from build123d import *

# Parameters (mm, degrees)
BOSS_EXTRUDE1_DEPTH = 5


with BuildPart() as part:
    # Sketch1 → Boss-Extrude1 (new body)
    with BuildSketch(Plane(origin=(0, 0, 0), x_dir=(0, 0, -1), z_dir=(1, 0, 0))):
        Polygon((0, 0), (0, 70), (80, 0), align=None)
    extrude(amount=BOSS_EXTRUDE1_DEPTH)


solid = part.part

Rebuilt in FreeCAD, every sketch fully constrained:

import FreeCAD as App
import Part
import Sketcher

V = App.Vector
Q = App.Units.Quantity


def add_polygon(sketch, points):
    """Adds a closed chain of lines whose ends are joined by coincident constraints."""
    first, n = sketch.GeometryCount, len(points)
    for a, b in zip(points, points[1:] + points[:1]):
        sketch.addGeometry(Part.LineSegment(App.Vector(*a, 0), App.Vector(*b, 0)), False)
    for i in range(n):
        sketch.addConstraint(Sketcher.Constraint("Coincident", first + i, 2, first + (i + 1) % n, 1))

doc = App.newDocument("Part")
params = doc.addObject("Spreadsheet::Sheet", "Params")
for row, (alias, value) in enumerate([
    ("sketch1_width", "70 mm"),
    ("sketch1_height", "80 mm"),
    ("pad1_length", "5 mm"),
], start=1):
    params.set(f"A{row}", alias)
    params.set(f"B{row}", "=" + value)
    params.setAlias(f"B{row}", alias)

body = doc.addObject("PartDesign::Body", "Body")

# Sketch on YZ plane
sketch1 = doc.addObject("Sketcher::SketchObject", "Sketch")
body.addObject(sketch1)
sketch1.AttachmentSupport = (doc.YZ_Plane, [""])
sketch1.MapMode = "FlatFace"
add_polygon(sketch1, [(70, 0), (0, 0), (0, -80)])  # lines 0-2
sketch1.addConstraint(Sketcher.Constraint("Horizontal", 0))
sketch1.addConstraint(Sketcher.Constraint("Vertical", 1))
sketch1.addConstraint(Sketcher.Constraint("Coincident", 0, 2, -1, 1))
sketch1.addConstraint(Sketcher.Constraint("DistanceX", 0, 2, 0, 1, Q("70 mm")))
sketch1.addConstraint(Sketcher.Constraint("DistanceY", 1, 2, 1, 1, Q("80 mm")))
sketch1.setExpression("Constraints[6]", "Params.sketch1_width")
sketch1.setExpression("Constraints[7]", "Params.sketch1_height")
pad1 = doc.addObject("PartDesign::Pad", "Pad")
body.addObject(pad1)
pad1.Profile = sketch1
pad1.setExpression("Length", "Params.pad1_length")

doc.recompute()
